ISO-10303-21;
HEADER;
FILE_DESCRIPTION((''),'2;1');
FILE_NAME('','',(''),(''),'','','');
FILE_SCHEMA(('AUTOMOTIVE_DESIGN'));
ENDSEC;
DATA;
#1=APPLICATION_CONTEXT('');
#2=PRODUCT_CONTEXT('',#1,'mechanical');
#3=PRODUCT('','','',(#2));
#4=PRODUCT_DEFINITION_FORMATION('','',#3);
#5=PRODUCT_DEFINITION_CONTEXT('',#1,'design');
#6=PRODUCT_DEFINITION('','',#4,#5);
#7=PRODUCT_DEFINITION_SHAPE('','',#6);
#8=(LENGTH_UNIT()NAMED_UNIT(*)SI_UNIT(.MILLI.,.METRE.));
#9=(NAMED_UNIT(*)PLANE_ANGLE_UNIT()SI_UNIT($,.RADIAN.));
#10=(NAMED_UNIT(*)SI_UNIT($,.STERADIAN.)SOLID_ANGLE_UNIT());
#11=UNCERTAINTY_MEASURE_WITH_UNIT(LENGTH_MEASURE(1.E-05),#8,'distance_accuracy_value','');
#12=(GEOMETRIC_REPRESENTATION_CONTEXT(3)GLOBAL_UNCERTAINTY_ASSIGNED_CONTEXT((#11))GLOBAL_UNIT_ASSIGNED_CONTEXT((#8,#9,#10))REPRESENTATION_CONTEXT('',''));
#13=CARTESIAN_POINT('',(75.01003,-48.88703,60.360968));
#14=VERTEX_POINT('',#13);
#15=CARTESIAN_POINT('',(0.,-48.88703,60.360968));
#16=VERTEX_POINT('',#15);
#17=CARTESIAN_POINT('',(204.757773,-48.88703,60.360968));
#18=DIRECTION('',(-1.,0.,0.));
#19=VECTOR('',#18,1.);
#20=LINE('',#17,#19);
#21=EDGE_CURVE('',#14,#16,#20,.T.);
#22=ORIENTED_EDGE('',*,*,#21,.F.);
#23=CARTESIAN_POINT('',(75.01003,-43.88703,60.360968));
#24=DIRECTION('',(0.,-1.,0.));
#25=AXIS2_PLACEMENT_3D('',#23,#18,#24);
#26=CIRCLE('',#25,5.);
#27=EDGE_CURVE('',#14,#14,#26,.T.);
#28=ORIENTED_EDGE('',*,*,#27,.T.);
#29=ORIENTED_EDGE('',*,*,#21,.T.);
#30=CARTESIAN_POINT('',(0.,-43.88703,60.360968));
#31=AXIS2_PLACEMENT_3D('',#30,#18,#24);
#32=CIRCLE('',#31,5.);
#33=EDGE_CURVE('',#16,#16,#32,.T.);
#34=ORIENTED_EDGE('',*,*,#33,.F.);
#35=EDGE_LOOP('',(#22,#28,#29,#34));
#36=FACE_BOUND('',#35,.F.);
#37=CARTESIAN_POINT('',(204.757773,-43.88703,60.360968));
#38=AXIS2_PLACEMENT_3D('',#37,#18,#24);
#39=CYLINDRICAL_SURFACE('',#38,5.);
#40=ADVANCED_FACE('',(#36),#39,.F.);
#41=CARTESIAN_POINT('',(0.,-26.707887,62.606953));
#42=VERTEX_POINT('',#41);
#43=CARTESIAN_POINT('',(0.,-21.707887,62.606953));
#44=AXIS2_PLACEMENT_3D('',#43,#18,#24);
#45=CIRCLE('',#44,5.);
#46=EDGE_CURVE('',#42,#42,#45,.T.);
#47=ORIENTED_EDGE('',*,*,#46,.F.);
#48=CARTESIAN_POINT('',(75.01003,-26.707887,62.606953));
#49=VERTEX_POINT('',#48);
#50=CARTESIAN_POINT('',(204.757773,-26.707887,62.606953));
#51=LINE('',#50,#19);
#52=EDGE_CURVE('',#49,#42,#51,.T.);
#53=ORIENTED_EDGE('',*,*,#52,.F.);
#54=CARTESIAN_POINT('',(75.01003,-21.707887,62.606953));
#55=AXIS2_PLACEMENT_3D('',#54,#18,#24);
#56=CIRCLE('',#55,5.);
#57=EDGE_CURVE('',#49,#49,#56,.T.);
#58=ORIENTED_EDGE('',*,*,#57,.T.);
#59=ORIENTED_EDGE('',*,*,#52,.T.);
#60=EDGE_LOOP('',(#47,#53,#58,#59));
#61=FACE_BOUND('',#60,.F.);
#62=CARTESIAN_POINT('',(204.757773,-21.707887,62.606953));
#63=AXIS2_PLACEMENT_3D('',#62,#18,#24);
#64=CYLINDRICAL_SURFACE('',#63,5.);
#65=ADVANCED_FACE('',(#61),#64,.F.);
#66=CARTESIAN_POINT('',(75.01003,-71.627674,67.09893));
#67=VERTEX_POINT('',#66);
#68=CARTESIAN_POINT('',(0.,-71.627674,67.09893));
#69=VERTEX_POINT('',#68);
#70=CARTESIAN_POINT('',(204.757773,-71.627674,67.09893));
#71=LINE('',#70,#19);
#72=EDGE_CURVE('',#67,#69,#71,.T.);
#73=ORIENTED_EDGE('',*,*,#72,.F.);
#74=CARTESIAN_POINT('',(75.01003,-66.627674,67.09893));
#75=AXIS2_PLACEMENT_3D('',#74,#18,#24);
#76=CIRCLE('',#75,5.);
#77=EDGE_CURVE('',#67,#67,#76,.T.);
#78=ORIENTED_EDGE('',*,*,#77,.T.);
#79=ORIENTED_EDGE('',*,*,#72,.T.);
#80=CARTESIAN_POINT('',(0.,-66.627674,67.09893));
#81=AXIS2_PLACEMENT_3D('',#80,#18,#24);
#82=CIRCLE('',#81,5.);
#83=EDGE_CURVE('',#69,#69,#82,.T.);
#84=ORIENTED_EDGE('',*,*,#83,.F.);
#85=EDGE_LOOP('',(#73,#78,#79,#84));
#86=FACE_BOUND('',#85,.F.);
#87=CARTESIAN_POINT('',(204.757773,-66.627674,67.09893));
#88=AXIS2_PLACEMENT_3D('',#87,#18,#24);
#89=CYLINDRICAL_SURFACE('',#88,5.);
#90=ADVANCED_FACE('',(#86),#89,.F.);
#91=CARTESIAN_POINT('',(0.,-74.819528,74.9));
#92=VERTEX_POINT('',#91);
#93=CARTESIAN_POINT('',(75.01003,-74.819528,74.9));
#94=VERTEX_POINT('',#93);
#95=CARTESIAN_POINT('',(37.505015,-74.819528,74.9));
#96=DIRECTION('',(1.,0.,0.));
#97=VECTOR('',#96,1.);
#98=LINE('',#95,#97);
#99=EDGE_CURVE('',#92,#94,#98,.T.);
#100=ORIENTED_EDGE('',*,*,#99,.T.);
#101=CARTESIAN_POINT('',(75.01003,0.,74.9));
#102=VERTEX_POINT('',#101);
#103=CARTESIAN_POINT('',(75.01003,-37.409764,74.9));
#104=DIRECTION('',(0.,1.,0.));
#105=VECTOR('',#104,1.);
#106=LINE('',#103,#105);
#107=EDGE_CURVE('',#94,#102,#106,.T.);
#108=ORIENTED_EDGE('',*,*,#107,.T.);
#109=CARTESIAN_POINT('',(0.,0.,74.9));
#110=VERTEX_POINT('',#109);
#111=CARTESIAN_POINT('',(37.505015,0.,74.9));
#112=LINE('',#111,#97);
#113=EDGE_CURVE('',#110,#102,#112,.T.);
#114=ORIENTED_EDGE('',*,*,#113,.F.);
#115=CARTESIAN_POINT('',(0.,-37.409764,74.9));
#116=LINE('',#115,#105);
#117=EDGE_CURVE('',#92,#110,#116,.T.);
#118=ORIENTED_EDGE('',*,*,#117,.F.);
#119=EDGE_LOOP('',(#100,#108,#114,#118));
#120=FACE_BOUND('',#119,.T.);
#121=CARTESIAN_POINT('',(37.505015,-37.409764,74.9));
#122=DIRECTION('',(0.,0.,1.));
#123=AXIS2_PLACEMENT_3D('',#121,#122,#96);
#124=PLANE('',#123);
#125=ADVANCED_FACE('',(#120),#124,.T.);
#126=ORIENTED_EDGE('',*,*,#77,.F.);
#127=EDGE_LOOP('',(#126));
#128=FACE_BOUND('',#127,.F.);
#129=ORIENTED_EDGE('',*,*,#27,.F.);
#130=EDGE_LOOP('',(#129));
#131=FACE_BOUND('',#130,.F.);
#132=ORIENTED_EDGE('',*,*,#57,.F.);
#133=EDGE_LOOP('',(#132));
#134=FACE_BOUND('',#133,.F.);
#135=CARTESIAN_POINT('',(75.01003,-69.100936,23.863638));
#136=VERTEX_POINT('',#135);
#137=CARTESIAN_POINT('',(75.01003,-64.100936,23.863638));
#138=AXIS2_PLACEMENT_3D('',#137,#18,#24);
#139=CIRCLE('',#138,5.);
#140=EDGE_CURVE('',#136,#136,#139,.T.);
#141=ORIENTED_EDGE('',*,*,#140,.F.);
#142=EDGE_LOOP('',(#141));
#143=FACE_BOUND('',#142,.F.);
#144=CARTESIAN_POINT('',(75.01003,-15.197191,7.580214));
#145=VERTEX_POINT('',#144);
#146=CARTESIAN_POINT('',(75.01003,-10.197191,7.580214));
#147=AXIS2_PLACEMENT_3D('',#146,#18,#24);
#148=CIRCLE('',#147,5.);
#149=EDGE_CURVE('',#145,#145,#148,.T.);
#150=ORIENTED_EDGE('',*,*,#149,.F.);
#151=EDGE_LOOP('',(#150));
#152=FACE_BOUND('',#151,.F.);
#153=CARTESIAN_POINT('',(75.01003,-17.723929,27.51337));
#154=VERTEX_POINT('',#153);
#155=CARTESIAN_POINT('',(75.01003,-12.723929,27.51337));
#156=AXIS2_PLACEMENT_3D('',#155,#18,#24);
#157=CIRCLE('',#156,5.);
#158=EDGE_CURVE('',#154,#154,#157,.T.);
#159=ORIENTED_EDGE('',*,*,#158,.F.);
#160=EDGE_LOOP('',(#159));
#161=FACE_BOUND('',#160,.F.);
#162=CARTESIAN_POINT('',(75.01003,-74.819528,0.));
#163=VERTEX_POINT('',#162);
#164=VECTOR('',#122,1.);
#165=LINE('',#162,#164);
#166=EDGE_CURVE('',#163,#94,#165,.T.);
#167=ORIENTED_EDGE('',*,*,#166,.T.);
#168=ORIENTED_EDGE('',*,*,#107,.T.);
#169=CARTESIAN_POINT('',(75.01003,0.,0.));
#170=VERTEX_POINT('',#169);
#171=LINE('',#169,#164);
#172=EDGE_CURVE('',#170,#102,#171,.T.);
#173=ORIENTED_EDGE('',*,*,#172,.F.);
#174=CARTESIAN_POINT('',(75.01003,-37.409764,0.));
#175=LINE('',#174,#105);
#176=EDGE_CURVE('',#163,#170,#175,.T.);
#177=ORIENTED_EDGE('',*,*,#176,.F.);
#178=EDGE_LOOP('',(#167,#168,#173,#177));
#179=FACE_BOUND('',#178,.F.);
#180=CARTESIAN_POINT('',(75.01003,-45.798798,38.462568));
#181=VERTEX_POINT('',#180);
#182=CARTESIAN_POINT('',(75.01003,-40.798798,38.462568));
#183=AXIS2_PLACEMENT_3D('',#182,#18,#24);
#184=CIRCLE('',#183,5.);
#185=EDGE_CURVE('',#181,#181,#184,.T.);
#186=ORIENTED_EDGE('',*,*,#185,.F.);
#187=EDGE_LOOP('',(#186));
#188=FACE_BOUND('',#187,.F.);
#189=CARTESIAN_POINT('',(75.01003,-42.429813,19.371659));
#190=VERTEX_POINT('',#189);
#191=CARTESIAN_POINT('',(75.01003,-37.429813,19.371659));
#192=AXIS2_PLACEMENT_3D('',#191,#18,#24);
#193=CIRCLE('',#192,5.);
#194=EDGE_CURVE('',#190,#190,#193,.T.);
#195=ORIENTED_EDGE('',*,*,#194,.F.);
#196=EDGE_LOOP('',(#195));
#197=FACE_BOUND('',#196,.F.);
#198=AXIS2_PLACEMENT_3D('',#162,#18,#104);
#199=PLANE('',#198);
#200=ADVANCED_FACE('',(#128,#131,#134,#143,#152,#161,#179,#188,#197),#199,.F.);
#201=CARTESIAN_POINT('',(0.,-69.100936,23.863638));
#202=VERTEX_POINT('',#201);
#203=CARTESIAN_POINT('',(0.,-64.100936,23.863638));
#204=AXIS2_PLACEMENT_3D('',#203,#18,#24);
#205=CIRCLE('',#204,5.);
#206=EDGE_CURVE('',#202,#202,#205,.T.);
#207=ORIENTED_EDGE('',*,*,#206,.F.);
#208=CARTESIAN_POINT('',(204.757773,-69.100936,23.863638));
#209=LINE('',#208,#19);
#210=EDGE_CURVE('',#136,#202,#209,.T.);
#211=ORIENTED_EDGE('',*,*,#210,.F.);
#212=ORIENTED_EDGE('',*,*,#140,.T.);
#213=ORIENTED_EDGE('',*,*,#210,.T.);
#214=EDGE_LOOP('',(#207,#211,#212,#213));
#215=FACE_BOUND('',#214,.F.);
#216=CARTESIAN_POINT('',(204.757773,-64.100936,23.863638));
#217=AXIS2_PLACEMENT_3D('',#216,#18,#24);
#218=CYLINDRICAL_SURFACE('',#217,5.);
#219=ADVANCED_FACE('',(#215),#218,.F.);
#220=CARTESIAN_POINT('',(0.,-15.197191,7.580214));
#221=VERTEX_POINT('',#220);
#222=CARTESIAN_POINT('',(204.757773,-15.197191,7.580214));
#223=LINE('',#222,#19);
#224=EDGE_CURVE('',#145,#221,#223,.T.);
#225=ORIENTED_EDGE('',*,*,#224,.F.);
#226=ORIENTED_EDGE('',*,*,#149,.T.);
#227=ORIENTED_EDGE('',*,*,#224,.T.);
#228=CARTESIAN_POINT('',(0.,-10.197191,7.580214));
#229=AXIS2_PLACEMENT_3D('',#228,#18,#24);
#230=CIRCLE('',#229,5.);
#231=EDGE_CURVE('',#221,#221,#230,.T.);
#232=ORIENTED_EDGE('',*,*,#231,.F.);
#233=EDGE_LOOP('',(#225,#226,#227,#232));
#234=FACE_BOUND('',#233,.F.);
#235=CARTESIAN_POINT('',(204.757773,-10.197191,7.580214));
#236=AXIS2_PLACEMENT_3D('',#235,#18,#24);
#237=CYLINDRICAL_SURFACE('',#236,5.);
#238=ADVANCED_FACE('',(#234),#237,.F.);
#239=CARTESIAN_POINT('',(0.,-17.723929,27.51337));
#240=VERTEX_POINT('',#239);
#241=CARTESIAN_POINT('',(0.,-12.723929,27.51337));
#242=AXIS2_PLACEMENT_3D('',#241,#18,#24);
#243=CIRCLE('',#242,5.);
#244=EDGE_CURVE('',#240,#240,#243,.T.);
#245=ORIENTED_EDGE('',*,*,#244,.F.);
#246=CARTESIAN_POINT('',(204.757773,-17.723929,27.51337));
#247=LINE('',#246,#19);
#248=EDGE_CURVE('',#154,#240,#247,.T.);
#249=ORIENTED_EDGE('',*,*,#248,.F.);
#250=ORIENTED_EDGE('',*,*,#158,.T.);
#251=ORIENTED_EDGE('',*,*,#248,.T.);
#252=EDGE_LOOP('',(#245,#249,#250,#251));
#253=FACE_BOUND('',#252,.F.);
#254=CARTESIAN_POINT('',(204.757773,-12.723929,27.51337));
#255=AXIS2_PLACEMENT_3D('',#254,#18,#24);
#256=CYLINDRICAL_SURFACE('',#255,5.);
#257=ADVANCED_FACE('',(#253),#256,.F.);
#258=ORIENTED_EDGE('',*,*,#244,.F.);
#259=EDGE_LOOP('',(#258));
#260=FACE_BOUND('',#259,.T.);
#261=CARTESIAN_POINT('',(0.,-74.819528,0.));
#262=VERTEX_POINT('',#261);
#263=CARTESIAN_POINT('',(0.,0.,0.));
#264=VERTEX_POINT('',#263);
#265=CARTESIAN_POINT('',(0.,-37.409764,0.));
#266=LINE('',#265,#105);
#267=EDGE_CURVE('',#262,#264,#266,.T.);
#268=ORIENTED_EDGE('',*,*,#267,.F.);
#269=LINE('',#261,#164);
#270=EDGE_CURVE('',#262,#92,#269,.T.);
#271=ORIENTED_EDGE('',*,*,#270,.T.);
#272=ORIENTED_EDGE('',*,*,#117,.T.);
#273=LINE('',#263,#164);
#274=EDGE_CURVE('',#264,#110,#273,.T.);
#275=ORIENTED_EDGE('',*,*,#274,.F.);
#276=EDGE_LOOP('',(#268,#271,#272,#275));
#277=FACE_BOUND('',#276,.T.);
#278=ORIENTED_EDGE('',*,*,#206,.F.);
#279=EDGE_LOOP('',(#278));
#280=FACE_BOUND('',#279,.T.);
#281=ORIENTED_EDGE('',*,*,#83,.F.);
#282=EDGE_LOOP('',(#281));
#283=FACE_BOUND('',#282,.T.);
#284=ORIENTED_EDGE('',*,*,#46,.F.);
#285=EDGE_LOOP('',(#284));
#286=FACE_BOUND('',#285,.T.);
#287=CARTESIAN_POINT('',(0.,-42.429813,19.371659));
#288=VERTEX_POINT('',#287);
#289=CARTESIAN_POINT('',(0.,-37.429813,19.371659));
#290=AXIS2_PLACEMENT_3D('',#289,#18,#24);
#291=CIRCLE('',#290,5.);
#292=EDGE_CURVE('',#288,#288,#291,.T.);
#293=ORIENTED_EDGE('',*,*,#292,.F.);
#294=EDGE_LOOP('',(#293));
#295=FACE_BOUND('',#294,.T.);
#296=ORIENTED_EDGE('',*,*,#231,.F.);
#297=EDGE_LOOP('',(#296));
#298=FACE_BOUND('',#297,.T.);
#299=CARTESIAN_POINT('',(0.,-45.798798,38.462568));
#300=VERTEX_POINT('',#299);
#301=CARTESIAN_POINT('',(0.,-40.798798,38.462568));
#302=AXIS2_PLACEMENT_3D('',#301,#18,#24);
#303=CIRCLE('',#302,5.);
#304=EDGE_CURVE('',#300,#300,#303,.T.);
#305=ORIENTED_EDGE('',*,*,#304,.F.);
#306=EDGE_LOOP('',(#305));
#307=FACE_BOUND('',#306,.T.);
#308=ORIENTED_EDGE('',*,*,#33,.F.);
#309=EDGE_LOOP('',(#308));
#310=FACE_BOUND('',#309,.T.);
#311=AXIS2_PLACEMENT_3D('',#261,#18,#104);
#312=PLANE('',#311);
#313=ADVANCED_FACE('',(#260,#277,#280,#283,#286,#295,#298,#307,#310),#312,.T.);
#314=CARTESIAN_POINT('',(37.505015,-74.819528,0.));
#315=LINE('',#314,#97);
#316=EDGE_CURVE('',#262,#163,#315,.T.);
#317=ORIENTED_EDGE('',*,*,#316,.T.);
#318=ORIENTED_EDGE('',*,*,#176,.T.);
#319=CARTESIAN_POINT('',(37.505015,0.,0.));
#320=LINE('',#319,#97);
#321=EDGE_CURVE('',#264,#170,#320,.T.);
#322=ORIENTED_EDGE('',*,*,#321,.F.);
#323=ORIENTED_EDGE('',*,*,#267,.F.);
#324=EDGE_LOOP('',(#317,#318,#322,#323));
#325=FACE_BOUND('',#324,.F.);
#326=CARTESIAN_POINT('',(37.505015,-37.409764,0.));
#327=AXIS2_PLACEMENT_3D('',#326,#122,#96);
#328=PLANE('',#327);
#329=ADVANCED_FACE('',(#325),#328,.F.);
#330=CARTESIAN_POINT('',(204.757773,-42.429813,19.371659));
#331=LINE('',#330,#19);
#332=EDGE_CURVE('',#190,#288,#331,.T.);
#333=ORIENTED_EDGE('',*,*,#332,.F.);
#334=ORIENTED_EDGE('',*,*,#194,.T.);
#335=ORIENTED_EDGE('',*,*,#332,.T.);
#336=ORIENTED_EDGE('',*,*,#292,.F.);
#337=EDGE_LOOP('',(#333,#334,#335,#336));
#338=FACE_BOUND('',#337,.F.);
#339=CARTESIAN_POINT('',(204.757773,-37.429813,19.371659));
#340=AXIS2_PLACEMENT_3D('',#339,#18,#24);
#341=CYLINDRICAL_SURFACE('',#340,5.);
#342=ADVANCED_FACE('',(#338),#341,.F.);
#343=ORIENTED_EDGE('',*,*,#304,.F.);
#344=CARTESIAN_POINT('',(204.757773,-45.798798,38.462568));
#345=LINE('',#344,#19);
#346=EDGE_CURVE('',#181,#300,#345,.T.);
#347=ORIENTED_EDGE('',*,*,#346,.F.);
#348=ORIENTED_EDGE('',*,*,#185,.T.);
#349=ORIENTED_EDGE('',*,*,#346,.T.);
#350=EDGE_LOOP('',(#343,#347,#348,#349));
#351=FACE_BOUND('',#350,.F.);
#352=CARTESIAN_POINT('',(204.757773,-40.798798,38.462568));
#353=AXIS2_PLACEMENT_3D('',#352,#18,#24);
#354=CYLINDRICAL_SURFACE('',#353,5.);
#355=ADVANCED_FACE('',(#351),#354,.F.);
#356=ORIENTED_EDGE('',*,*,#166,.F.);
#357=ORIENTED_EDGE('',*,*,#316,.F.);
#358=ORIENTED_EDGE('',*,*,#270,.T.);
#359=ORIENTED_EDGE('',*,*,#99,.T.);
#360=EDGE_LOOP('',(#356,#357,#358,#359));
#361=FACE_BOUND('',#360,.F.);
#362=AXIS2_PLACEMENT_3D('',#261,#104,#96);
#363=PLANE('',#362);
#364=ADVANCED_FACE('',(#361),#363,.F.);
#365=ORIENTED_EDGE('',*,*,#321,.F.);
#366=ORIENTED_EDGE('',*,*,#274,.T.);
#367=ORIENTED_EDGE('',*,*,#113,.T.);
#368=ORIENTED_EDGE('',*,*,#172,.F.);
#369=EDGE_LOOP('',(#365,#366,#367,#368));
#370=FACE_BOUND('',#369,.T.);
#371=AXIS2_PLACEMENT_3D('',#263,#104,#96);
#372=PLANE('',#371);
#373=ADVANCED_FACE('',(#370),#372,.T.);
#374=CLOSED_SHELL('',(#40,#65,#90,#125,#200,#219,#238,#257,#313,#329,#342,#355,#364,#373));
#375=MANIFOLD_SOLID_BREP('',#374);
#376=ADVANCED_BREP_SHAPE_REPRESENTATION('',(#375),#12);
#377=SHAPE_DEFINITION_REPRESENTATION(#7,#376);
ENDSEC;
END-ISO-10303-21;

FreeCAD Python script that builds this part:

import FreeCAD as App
import Part
import Sketcher

V = App.Vector


def add_polygon(sketch, points):
    """Adds a closed chain of lines whose ends are joined by coincident constraints."""
    first, n = sketch.GeometryCount, len(points)
    for a, b in zip(points, points[1:] + points[:1]):
        sketch.addGeometry(Part.LineSegment(App.Vector(*a, 0), App.Vector(*b, 0)), False)
    for i in range(n):
        sketch.addConstraint(Sketcher.Constraint("Coincident", first + i, 2, first + (i + 1) % n, 1))

doc = App.newDocument("Part")
body = doc.addObject("PartDesign::Body", "Body")

# Sketch on XY plane
sketch1 = body.newObject("Sketcher::SketchObject", "Sketch")
sketch1.AttachmentSupport = (doc.getObject("XY_Plane"), [""])
sketch1.MapMode = "FlatFace"
add_polygon(sketch1, [(0, 0), (0, -75), (75, -75), (75, 0)])  # lines 0-3
sketch1.addConstraint([
    Sketcher.Constraint("Vertical", 0),
    Sketcher.Constraint("Horizontal", 1),
    Sketcher.Constraint("Vertical", 2),
    Sketcher.Constraint("Horizontal", 3),
    Sketcher.Constraint("Coincident", 3, 2, -1, 1),
    Sketcher.Constraint("DistanceX", 1, 1, 1, 2, 75.010031),
    Sketcher.Constraint("DistanceY", 0, 2, 0, 1, 74.819528),
])
pad1 = body.newObject("PartDesign::Pad", "Pad")
pad1.Profile = sketch1
pad1.Length = 74.9

# Sketch on YZ plane
sketch2 = body.newObject("Sketcher::SketchObject", "Sketch001")
sketch2.AttachmentSupport = (doc.getObject("YZ_Plane"), [""])
sketch2.MapMode = "FlatFace"
sketch2.AttachmentOffset = App.Placement(V(0, 0, 75.010031), App.Rotation())
sketch2.addGeometry([
    Part.Circle(V(-22, 63, 0), V(0, 0, 1), 5),  # 0
    Part.Circle(V(-41, 38, 0), V(0, 0, 1), 5),  # 1
    Part.Circle(V(-37, 19, 0), V(0, 0, 1), 5),  # 2
    Part.Circle(V(-67, 67, 0), V(0, 0, 1), 5),  # 3
    Part.Circle(V(-44, 60, 0), V(0, 0, 1), 5),  # 4
    Part.Circle(V(-13, 28, 0), V(0, 0, 1), 5),  # 5
    Part.Circle(V(-64, 24, 0), V(0, 0, 1), 5),  # 6
    Part.Circle(V(-10, 8, 0), V(0, 0, 1), 5),  # 7
], False)
sketch2.addConstraint([
    Sketcher.Constraint("Equal", 0, 1),
    Sketcher.Constraint("Equal", 1, 2),
    Sketcher.Constraint("Equal", 2, 3),
    Sketcher.Constraint("Equal", 3, 4),
    Sketcher.Constraint("Equal", 4, 5),
    Sketcher.Constraint("Equal", 5, 6),
    Sketcher.Constraint("Equal", 6, 7),
    Sketcher.Constraint("Diameter", 0, 10.0),
    Sketcher.Constraint("DistanceY", 1, 3, 4, 3, 21.8984),
    Sketcher.Constraint("DistanceX", 4, 3, 5, 3, 31.163101),
    Sketcher.Constraint("DistanceY", 5, 3, 4, 3, 32.847598),
    Sketcher.Constraint("DistanceY", -1, 1, 2, 3, 19.371659),
    Sketcher.Constraint("DistanceY", -1, 1, 3, 3, 67.09893),
    Sketcher.Constraint("DistanceX", 4, 3, -1, 1, 43.88703),
    Sketcher.Constraint("DistanceY", -1, 1, 5, 3, 27.51337),
    Sketcher.Constraint("DistanceY", -1, 1, 6, 3, 23.863638),
    Sketcher.Constraint("DistanceX", 7, 3, -1, 1, 10.197191),
    Sketcher.Constraint("DistanceX", 1, 3, 0, 3, 19.090911),
    Sketcher.Constraint("DistanceX", 3, 3, 2, 3, 29.197861),
    Sketcher.Constraint("DistanceX", 1, 3, 5, 3, 28.074869),
    Sketcher.Constraint("DistanceX", 6, 3, 1, 3, 23.302138),
    Sketcher.Constraint("DistanceY", 7, 3, 0, 3, 55.026739),
    Sketcher.Constraint("DistanceY", -1, 1, 0, 3, 62.606953),
    Sketcher.Constraint("DistanceX", 2, 3, -1, 1, 37.429813),
])
doc.recompute()
hole = body.newObject("PartDesign::Hole", "Hole")
hole.Profile = sketch2
hole.ThreadType = "None"
hole.Diameter = 10
hole.DepthType = "ThroughAll"

doc.recompute()
